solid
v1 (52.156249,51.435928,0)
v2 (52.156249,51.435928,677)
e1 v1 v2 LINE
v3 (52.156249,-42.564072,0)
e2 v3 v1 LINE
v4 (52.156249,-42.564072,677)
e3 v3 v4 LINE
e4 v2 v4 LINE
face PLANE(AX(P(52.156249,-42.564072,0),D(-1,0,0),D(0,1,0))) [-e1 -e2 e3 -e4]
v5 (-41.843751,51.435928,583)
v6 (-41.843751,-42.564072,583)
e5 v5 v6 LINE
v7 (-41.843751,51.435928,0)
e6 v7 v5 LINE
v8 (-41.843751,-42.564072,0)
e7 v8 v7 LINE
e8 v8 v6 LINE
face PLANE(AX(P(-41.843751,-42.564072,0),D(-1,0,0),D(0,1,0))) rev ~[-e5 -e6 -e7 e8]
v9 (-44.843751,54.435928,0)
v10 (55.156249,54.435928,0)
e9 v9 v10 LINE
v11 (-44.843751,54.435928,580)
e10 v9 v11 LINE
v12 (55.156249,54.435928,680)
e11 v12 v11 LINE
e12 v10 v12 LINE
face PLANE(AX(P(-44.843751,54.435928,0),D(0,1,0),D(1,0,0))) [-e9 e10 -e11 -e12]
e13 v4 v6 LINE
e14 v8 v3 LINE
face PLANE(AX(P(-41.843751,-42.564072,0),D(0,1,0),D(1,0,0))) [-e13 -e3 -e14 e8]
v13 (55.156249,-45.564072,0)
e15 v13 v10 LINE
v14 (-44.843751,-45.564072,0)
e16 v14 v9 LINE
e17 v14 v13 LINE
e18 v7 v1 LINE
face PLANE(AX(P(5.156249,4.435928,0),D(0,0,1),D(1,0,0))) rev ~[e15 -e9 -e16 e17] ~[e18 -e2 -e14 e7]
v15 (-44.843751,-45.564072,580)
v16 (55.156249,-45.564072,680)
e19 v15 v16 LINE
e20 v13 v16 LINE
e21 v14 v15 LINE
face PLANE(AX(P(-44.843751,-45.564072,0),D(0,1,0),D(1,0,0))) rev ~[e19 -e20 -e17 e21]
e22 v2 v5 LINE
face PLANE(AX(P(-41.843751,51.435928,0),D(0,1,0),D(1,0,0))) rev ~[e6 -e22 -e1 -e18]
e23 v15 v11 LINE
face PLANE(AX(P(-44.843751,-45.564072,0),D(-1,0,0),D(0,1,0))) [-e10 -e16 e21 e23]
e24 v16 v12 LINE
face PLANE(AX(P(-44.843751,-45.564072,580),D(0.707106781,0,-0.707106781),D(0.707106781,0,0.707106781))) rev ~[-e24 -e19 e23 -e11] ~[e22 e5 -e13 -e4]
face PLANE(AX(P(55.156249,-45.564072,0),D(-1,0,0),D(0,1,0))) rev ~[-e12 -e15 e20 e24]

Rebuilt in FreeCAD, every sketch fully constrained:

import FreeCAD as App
import Part
import Sketcher
from FreeCAD import Vector
Q = App.Units.Quantity

doc = App.newDocument("Part")
body = doc.addObject("PartDesign::Body", "Body")

sketch1 = doc.addObject("Sketcher::SketchObject", "Sketch")
body.addObject(sketch1)
sketch1.AttachmentSupport = (doc.XY_Plane, [""])
sketch1.MapMode = "FlatFace"
sketch1.addGeometry([
    Part.LineSegment(Vector(-44.843751, 54.435928, 0), Vector(-44.843751, -45.564072, 0)),
    Part.LineSegment(Vector(-44.843751, -45.564072, 0), Vector(55.156249, -45.564072, 0)),
    Part.LineSegment(Vector(55.156249, -45.564072, 0), Vector(55.156249, 54.435928, 0)),
    Part.LineSegment(Vector(55.156249, 54.435928, 0), Vector(-44.843751, 54.435928, 0)),
    Part.LineSegment(Vector(52.156249, -42.564072, 0), Vector(-41.843751, -42.564072, 0)),
    Part.LineSegment(Vector(-41.843751, -42.564072, 0), Vector(-41.843751, 51.435928, 0)),
    Part.LineSegment(Vector(-41.843751, 51.435928, 0), Vector(52.156249, 51.435928, 0)),
    Part.LineSegment(Vector(52.156249, 51.435928, 0), Vector(52.156249, -42.564072, 0)),
], False)
sketch1.addConstraint([
    Sketcher.Constraint("Coincident", 0, 2, 1, 1),
    Sketcher.Constraint("Coincident", 1, 2, 2, 1),
    Sketcher.Constraint("Coincident", 2, 2, 3, 1),
    Sketcher.Constraint("Coincident", 3, 2, 0, 1),
    Sketcher.Constraint("Coincident", 4, 2, 5, 1),
    Sketcher.Constraint("Coincident", 5, 2, 6, 1),
    Sketcher.Constraint("Coincident", 6, 2, 7, 1),
    Sketcher.Constraint("Coincident", 7, 2, 4, 1),
    Sketcher.Constraint("Vertical", 0),
    Sketcher.Constraint("Horizontal", 1),
    Sketcher.Constraint("Vertical", 2),
    Sketcher.Constraint("Horizontal", 3),
    Sketcher.Constraint("Horizontal", 4),
    Sketcher.Constraint("Vertical", 5),
    Sketcher.Constraint("Horizontal", 6),
    Sketcher.Constraint("Vertical", 7),
    Sketcher.Constraint("Equal", 3, 0),
    Sketcher.Constraint("Equal", 6, 5),
    Sketcher.Constraint("DistanceX", 1, 1, 1, 2, Q("100 mm")),
    Sketcher.Constraint("DistanceX", 4, 2, 4, 1, Q("94 mm")),
    Sketcher.Constraint("DistanceX", 0, 2, 4, 2, Q("3 mm")),
    Sketcher.Constraint("DistanceY", 0, 2, 4, 2, Q("3 mm")),
    Sketcher.Constraint("DistanceX", 0, 2, -1, 1, Q("44.843751 mm")),
    Sketcher.Constraint("DistanceY", 0, 2, -1, 1, Q("45.564072 mm")),
])
pad1 = doc.addObject("PartDesign::Pad", "Pad")
body.addObject(pad1)
pad1.Profile = sketch1
pad1.Length = 680

sketch2 = doc.addObject("Sketcher::SketchObject", "Sketch001")
body.addObject(sketch2)
sketch2.AttachmentSupport = (doc.XZ_Plane, [""])
sketch2.MapMode = "FlatFace"
sketch2.AttachmentOffset = App.Placement(Vector(0, 0, 45.564072), App.Rotation())
sketch2.addGeometry([
    Part.LineSegment(Vector(-44.843751, 580, 0), Vector(55.156249, 680, 0)),
    Part.LineSegment(Vector(55.156249, 680, 0), Vector(-44.843751, 680, 0)),
    Part.LineSegment(Vector(-44.843751, 680, 0), Vector(-44.843751, 580, 0)),
], False)
sketch2.addConstraint([
    Sketcher.Constraint("Coincident", 0, 2, 1, 1),
    Sketcher.Constraint("Coincident", 1, 2, 2, 1),
    Sketcher.Constraint("Coincident", 2, 2, 0, 1),
    Sketcher.Constraint("Horizontal", 1),
    Sketcher.Constraint("Vertical", 2),
    Sketcher.Constraint("Equal", 1, 2),
    Sketcher.Constraint("DistanceX", 1, 2, 1, 1, Q("100 mm")),
    Sketcher.Constraint("DistanceY", -1, 1, 0, 2, Q("680 mm")),
    Sketcher.Constraint("DistanceX", -1, 1, 0, 2, Q("55.156249 mm")),
])
pocket1 = doc.addObject("PartDesign::Pocket", "Pocket")
body.addObject(pocket1)
pocket1.Profile = sketch2
pocket1.Length = 110

doc.recompute()
